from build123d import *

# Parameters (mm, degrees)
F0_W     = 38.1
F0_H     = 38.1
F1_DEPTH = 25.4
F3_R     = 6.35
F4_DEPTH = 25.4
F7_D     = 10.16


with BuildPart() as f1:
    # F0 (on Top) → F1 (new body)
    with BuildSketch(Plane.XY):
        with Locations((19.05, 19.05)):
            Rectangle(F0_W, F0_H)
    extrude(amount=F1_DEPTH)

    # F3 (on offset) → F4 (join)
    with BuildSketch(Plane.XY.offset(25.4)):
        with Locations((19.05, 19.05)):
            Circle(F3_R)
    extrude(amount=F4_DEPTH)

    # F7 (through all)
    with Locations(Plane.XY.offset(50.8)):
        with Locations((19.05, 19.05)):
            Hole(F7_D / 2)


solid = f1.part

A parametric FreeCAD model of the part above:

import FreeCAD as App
import Part
import Sketcher
Q = App.Units.Quantity

doc = App.newDocument("Part")
body = doc.addObject("PartDesign::Body", "Body")

sketch1 = body.newObject("Sketcher::SketchObject", "Sketch")
sketch1.AttachmentSupport = (doc.getObject("XY_Plane"), [""])
sketch1.MapMode = "FlatFace"
sketch1.addGeometry([
    Part.LineSegment(App.Vector(0, 38.1, 0), App.Vector(0, 0, 0)),
    Part.LineSegment(App.Vector(0, 0, 0), App.Vector(38.1, 0, 0)),
    Part.LineSegment(App.Vector(38.1, 0, 0), App.Vector(38.1, 38.1, 0)),
    Part.LineSegment(App.Vector(38.1, 38.1, 0), App.Vector(0, 38.1, 0)),
], False)
sketch1.addConstraint([
    Sketcher.Constraint("Coincident", 0, 2, 1, 1),
    Sketcher.Constraint("Coincident", 1, 2, 2, 1),
    Sketcher.Constraint("Coincident", 2, 2, 3, 1),
    Sketcher.Constraint("Coincident", 3, 2, 0, 1),
    Sketcher.Constraint("Vertical", 0),
    Sketcher.Constraint("Horizontal", 1),
    Sketcher.Constraint("Vertical", 2),
    Sketcher.Constraint("Horizontal", 3),
    Sketcher.Constraint("Coincident", 0, 2, -1, 1),
    Sketcher.Constraint("Equal", 3, 0),
    Sketcher.Constraint("DistanceX", 1, 1, 1, 2, Q("1.5 in")),
])
pad1 = body.newObject("PartDesign::Pad", "Pad")
pad1.Profile = sketch1
pad1.Length = Q("1 in")

sketch2 = body.newObject("Sketcher::SketchObject", "Sketch001")
sketch2.AttachmentSupport = (doc.getObject("XY_Plane"), [""])
sketch2.MapMode = "FlatFace"
sketch2.AttachmentOffset = App.Placement(App.Vector(0, 0, 1 * 25.4), App.Rotation())
sketch2.addGeometry(Part.Circle(App.Vector(19.05, 19.05, 0), App.Vector(0, 0, 1), 6.35), False)
sketch2.addConstraint([
    Sketcher.Constraint("Diameter", 0, Q("0.5 in")),
    Sketcher.Constraint("DistanceX", -1, 1, 0, 3, Q("0.75 in")),
    Sketcher.Constraint("DistanceY", -1, 1, 0, 3, Q("0.75 in")),
])
pad2 = body.newObject("PartDesign::Pad", "Pad001")
pad2.Profile = sketch2
pad2.Length = Q("1 in")

sketch3 = body.newObject("Sketcher::SketchObject", "Sketch002")
sketch3.AttachmentSupport = (doc.getObject("XY_Plane"), [""])
sketch3.MapMode = "FlatFace"
sketch3.AttachmentOffset = App.Placement(App.Vector(0, 0, 2 * 25.4), App.Rotation())
sketch3.addGeometry(Part.Circle(App.Vector(19.05, 19.05, 0), App.Vector(0, 0, 1), 5.08), False)
sketch3.addConstraint([
    Sketcher.Constraint("Diameter", 0, Q("0.4 in")),
    Sketcher.Constraint("DistanceX", -1, 1, 0, 3, Q("0.75 in")),
    Sketcher.Constraint("DistanceY", -1, 1, 0, 3, Q("0.75 in")),
])
doc.recompute()
hole = body.newObject("PartDesign::Hole", "Hole")
hole.Profile = sketch3
hole.ThreadType = "None"
hole.Diameter = Q("0.4 in")
hole.DepthType = "ThroughAll"

doc.recompute()
